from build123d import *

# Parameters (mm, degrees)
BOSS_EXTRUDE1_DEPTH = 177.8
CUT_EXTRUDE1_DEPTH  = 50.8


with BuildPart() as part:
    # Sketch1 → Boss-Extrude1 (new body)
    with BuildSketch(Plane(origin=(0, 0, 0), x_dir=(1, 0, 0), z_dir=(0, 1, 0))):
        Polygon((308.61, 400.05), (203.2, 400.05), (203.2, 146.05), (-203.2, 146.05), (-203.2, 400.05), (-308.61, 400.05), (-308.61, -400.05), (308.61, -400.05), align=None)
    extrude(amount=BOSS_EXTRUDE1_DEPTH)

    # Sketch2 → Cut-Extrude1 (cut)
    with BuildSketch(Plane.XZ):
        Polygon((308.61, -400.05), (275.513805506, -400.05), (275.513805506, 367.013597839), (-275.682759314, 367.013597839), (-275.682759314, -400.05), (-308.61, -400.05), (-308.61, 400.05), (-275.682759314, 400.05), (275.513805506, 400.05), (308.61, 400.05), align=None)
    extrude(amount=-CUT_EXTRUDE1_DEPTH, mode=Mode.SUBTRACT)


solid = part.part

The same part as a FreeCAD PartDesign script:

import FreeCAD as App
import Part
import Sketcher
Q = App.Units.Quantity

doc = App.newDocument("Part")
params = doc.addObject("Spreadsheet::Sheet", "Params")
for row, (alias, value) in enumerate([
    ("sketch1_width", "16 in"),
    ("sketch1_height", "10 in"),
    ("sketch1_width2", "24.3 in"),
    ("sketch1_height2", "31.5 in"),
    ("pad1_length", "7 in"),
    ("sketch2_width", "24.3 in"),
    ("sketch2_height", "31.5 in"),
    ("pocket1_length", "2 in"),
], start=1):
    params.set(f"A{row}", alias)
    params.set(f"B{row}", "=" + value)
    params.setAlias(f"B{row}", alias)

body = doc.addObject("PartDesign::Body", "Body")

sketch1 = body.newObject("Sketcher::SketchObject", "Sketch")
sketch1.AttachmentSupport = (doc.getObject("XZ_Plane"), [""])
sketch1.MapMode = "FlatFace"
sketch1.addGeometry(Part.LineSegment(App.Vector(308.61, -400.05, 0), App.Vector(203.2, -400.05, 0)), False)
sketch1.addGeometry(Part.LineSegment(App.Vector(203.2, -400.05, 0), App.Vector(203.2, -146.05, 0)), False)
sketch1.addGeometry(Part.LineSegment(App.Vector(203.2, -146.05, 0), App.Vector(-203.2, -146.05, 0)), False)
sketch1.addGeometry(Part.LineSegment(App.Vector(-203.2, -146.05, 0), App.Vector(-203.2, -400.05, 0)), False)
sketch1.addGeometry(Part.LineSegment(App.Vector(-203.2, -400.05, 0), App.Vector(-308.61, -400.05, 0)), False)
sketch1.addGeometry(Part.LineSegment(App.Vector(-308.61, -400.05, 0), App.Vector(-308.61, 400.05, 0)), False)
sketch1.addGeometry(Part.LineSegment(App.Vector(-308.61, 400.05, 0), App.Vector(308.61, 400.05, 0)), False)
sketch1.addGeometry(Part.LineSegment(App.Vector(308.61, 400.05, 0), App.Vector(308.61, -400.05, 0)), False)
sketch1.addConstraint(Sketcher.Constraint("Coincident", 0, 2, 1, 1))
sketch1.addConstraint(Sketcher.Constraint("Coincident", 1, 2, 2, 1))
sketch1.addConstraint(Sketcher.Constraint("Coincident", 2, 2, 3, 1))
sketch1.addConstraint(Sketcher.Constraint("Coincident", 3, 2, 4, 1))
sketch1.addConstraint(Sketcher.Constraint("Coincident", 4, 2, 5, 1))
sketch1.addConstraint(Sketcher.Constraint("Coincident", 5, 2, 6, 1))
sketch1.addConstraint(Sketcher.Constraint("Coincident", 6, 2, 7, 1))
sketch1.addConstraint(Sketcher.Constraint("Coincident", 7, 2, 0, 1))
sketch1.addConstraint(Sketcher.Constraint("Horizontal", 0))
sketch1.addConstraint(Sketcher.Constraint("Vertical", 1))
sketch1.addConstraint(Sketcher.Constraint("Horizontal", 2))
sketch1.addConstraint(Sketcher.Constraint("Vertical", 3))
sketch1.addConstraint(Sketcher.Constraint("Horizontal", 4))
sketch1.addConstraint(Sketcher.Constraint("Vertical", 5))
sketch1.addConstraint(Sketcher.Constraint("Horizontal", 6))
sketch1.addConstraint(Sketcher.Constraint("Vertical", 7))
sketch1.addConstraint(Sketcher.Constraint("Symmetric", 4, 2, 6, 2, -1, 1))
sketch1.addConstraint(Sketcher.Constraint("Symmetric", 0, 2, 3, 2, -2))
sketch1.addConstraint(Sketcher.Constraint("DistanceX", 2, 2, 2, 1, Q("16 in")))
sketch1.addConstraint(Sketcher.Constraint("DistanceY", 1, 1, 1, 2, Q("10 in")))
sketch1.addConstraint(Sketcher.Constraint("DistanceX", 6, 1, 6, 2, Q("24.3 in")))
sketch1.addConstraint(Sketcher.Constraint("DistanceY", 5, 1, 5, 2, Q("31.5 in")))
sketch1.setExpression("Constraints[18]", "Params.sketch1_width")
sketch1.setExpression("Constraints[19]", "Params.sketch1_height")
sketch1.setExpression("Constraints[20]", "Params.sketch1_width2")
sketch1.setExpression("Constraints[21]", "Params.sketch1_height2")
pad1 = body.newObject("PartDesign::Pad", "Pad")
pad1.Profile = sketch1
pad1.setExpression("Length", "Params.pad1_length")
pad1.Reversed = True

sketch2 = body.newObject("Sketcher::SketchObject", "Sketch001")
sketch2.AttachmentSupport = (doc.getObject("XZ_Plane"), [""])
sketch2.MapMode = "FlatFace"
sketch2.addGeometry(Part.LineSegment(App.Vector(275.513806, -400.05, 0), App.Vector(308.61, -400.05, 0)), False)
sketch2.addGeometry(Part.LineSegment(App.Vector(308.61, -400.05, 0), App.Vector(308.61, 400.05, 0)), False)
sketch2.addGeometry(Part.LineSegment(App.Vector(308.61, 400.05, 0), App.Vector(-308.61, 400.05, 0)), False)
sketch2.addGeometry(Part.LineSegment(App.Vector(-308.61, 400.05, 0), App.Vector(-308.61, -400.05, 0)), False)
sketch2.addGeometry(Part.LineSegment(App.Vector(-308.61, -400.05, 0), App.Vector(-275.682759, -400.05, 0)), False)
sketch2.addGeometry(Part.LineSegment(App.Vector(-275.682759, -400.05, 0), App.Vector(-275.682759, 367.013598, 0)), False)
sketch2.addGeometry(Part.LineSegment(App.Vector(-275.682759, 367.013598, 0), App.Vector(275.513806, 367.013598, 0)), False)
sketch2.addGeometry(Part.LineSegment(App.Vector(275.513806, 367.013598, 0), App.Vector(275.513806, -400.05, 0)), False)
sketch2.addConstraint(Sketcher.Constraint("Coincident", 0, 2, 1, 1))
sketch2.addConstraint(Sketcher.Constraint("Coincident", 1, 2, 2, 1))
sketch2.addConstraint(Sketcher.Constraint("Coincident", 2, 2, 3, 1))
sketch2.addConstraint(Sketcher.Constraint("Coincident", 3, 2, 4, 1))
sketch2.addConstraint(Sketcher.Constraint("Coincident", 4, 2, 5, 1))
sketch2.addConstraint(Sketcher.Constraint("Coincident", 5, 2, 6, 1))
sketch2.addConstraint(Sketcher.Constraint("Coincident", 6, 2, 7, 1))
sketch2.addConstraint(Sketcher.Constraint("Coincident", 7, 2, 0, 1))
sketch2.addConstraint(Sketcher.Constraint("Horizontal", 0))
sketch2.addConstraint(Sketcher.Constraint("Vertical", 1))
sketch2.addConstraint(Sketcher.Constraint("Horizontal", 2))
sketch2.addConstraint(Sketcher.Constraint("Vertical", 3))
sketch2.addConstraint(Sketcher.Constraint("Horizontal", 4))
sketch2.addConstraint(Sketcher.Constraint("Vertical", 5))
sketch2.addConstraint(Sketcher.Constraint("Horizontal", 6))
sketch2.addConstraint(Sketcher.Constraint("Vertical", 7))
sketch2.addConstraint(Sketcher.Constraint("Symmetric", 0, 2, 2, 2, -1, 1))
sketch2.addConstraint(Sketcher.Constraint("Horizontal", 0, 2, 3, 2))
sketch2.addConstraint(Sketcher.Constraint("DistanceX", 2, 2, 2, 1, Q("24.3 in")))
sketch2.addConstraint(Sketcher.Constraint("DistanceY", 1, 1, 1, 2, Q("31.5 in")))
sketch2.addConstraint(Sketcher.Constraint("DistanceX", 4, 1, 4, 2, Q("32.927241 mm")))
sketch2.addConstraint(Sketcher.Constraint("DistanceX", 0, 1, 0, 2, Q("33.096194 mm")))
sketch2.addConstraint(Sketcher.Constraint("DistanceY", 5, 1, 5, 2, Q("767.063598 mm")))
sketch2.setExpression("Constraints[18]", "Params.sketch2_width")
sketch2.setExpression("Constraints[19]", "Params.sketch2_height")
pocket1 = body.newObject("PartDesign::Pocket", "Pocket")
pocket1.Profile = sketch2
pocket1.setExpression("Length", "Params.pocket1_length")

doc.recompute()
